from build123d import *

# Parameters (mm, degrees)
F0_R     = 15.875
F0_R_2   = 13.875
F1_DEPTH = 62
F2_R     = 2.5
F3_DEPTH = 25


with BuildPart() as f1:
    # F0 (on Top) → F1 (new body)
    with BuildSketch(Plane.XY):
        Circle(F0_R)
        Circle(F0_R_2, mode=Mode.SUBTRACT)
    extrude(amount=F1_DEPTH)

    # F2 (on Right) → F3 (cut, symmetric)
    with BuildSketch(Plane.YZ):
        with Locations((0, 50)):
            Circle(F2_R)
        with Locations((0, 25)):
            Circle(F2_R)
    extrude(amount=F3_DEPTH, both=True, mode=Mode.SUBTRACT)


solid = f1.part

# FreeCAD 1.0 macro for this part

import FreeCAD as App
import Part
import Sketcher

V = App.Vector

doc = App.newDocument("Part")
body = doc.addObject("PartDesign::Body", "Body")

# Sketch on XY plane
sketch1 = body.newObject("Sketcher::SketchObject", "Sketch")
sketch1.AttachmentSupport = (doc.getObject("XY_Plane"), [""])
sketch1.MapMode = "FlatFace"
sketch1.addGeometry(Part.Circle(V(0, 0, 0), V(0, 0, 1), 16), False)
sketch1.addGeometry(Part.Circle(V(0, 0, 0), V(0, 0, 1), 14), False)
sketch1.addConstraint(Sketcher.Constraint("Coincident", 0, 3, -1, 1))
sketch1.addConstraint(Sketcher.Constraint("Coincident", 1, 3, -1, 1))
sketch1.addConstraint(Sketcher.Constraint("Diameter", 0, 31.75))
sketch1.addConstraint(Sketcher.Constraint("Diameter", 1, 27.75))
pad1 = body.newObject("PartDesign::Pad", "Pad")
pad1.Profile = sketch1
pad1.Length = 62

# Sketch on YZ plane
sketch2 = body.newObject("Sketcher::SketchObject", "Sketch001")
sketch2.AttachmentSupport = (doc.getObject("YZ_Plane"), [""])
sketch2.MapMode = "FlatFace"
sketch2.addGeometry(Part.Circle(V(0, 50, 0), V(0, 0, 1), 2.5), False)
sketch2.addGeometry(Part.Circle(V(0, 25, 0), V(0, 0, 1), 2.5), False)
sketch2.addConstraint(Sketcher.Constraint("Equal", 0, 1))
sketch2.addConstraint(Sketcher.Constraint("PointOnObject", 0, 3, -2))
sketch2.addConstraint(Sketcher.Constraint("PointOnObject", 1, 3, -2))
sketch2.addConstraint(Sketcher.Constraint("Diameter", 0, 5.0))
sketch2.addConstraint(Sketcher.Constraint("DistanceY", -1, 1, 0, 3, 50.0))
sketch2.addConstraint(Sketcher.Constraint("DistanceY", -1, 1, 1, 3, 25.0))
pocket1 = body.newObject("PartDesign::Pocket", "Pocket")
pocket1.Profile = sketch2
pocket1.Length = 50
pocket1.Midplane = True

doc.recompute()
